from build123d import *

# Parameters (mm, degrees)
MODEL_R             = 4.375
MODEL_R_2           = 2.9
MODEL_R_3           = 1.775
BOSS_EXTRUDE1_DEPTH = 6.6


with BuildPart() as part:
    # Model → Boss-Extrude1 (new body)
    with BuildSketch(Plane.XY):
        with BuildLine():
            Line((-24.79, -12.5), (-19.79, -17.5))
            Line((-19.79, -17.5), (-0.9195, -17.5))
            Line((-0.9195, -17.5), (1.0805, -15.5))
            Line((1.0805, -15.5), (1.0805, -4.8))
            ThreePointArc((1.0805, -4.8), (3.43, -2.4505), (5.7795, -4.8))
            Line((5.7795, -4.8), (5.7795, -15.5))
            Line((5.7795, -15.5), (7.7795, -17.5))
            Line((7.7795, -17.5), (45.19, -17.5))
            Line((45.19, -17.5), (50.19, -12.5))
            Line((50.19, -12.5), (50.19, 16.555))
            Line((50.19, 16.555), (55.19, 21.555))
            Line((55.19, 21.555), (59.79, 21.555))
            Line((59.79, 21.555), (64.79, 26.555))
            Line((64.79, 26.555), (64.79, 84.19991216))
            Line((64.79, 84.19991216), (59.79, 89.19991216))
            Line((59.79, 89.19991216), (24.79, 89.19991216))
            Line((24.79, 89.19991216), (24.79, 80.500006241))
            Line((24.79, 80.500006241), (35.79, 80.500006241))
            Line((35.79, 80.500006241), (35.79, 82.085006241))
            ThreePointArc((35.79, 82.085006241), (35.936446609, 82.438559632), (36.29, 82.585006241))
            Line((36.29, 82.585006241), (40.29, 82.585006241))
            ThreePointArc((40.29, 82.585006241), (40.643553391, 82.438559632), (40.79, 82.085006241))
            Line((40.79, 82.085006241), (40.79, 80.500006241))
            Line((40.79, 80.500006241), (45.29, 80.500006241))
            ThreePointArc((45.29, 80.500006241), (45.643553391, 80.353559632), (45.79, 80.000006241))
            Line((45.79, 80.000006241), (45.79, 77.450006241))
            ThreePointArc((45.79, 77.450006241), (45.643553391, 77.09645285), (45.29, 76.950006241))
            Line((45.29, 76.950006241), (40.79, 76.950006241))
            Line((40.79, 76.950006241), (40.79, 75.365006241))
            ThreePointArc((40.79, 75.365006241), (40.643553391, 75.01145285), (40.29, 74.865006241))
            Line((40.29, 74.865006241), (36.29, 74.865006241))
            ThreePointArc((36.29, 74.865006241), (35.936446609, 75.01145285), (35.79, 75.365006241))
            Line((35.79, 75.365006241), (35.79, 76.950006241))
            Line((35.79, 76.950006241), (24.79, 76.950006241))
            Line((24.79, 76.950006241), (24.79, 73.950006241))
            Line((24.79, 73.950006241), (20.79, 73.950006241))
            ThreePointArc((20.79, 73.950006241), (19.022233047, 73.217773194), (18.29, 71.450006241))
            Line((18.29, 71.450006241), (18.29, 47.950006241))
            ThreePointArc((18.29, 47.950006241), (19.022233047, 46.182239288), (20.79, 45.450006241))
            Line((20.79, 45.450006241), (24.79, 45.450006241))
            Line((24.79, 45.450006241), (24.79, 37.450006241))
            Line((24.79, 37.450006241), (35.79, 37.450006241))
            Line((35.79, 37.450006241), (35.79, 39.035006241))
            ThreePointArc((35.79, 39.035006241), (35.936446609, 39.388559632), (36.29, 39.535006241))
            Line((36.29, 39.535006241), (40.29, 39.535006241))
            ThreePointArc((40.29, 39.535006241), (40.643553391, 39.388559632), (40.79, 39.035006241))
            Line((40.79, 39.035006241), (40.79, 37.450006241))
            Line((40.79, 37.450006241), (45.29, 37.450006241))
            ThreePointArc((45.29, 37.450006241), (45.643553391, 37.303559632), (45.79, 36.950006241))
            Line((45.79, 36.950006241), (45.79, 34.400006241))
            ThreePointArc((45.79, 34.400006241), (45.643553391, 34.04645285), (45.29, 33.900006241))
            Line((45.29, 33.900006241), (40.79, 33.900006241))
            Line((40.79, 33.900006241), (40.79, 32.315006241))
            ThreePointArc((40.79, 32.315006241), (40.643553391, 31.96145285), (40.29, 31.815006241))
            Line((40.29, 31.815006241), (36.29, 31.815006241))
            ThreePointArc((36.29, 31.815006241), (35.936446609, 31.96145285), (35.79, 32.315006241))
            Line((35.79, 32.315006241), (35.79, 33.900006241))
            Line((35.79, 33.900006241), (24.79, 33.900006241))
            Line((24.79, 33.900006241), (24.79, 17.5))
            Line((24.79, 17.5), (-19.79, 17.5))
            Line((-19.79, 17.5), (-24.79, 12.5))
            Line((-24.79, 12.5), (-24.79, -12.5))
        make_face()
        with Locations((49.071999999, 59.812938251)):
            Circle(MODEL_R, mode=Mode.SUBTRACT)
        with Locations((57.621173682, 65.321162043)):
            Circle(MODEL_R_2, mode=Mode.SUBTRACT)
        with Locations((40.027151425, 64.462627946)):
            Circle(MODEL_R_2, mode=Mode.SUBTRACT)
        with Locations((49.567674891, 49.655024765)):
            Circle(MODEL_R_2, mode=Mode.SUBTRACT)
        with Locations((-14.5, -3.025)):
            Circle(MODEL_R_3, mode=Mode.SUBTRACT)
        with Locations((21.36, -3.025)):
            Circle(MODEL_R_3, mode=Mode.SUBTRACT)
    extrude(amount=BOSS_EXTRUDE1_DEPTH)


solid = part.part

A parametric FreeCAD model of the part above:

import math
import FreeCAD as App
import Part
import Sketcher

V = App.Vector

doc = App.newDocument("Part")
body = doc.addObject("PartDesign::Body", "Body")

sketch1 = body.newObject("Sketcher::SketchObject", "Sketch")
sketch1.AttachmentSupport = (doc.getObject("XY_Plane"), [""])
sketch1.MapMode = "FlatFace"
sketch1.addGeometry(Part.LineSegment(V(-24.79, -12.5, 0), V(-19.79, -17.5, 0)), False)
sketch1.addGeometry(Part.LineSegment(V(-19.79, -17.5, 0), V(-0.92, -17.5, 0)), False)
sketch1.addGeometry(Part.LineSegment(V(-0.92, -17.5, 0), V(1.08, -15.5, 0)), False)
sketch1.addGeometry(Part.LineSegment(V(1.08, -15.5, 0), V(1.08, -4.8, 0)), False)
sketch1.addGeometry(Part.ArcOfCircle(Part.Circle(V(3.43, -4.8, 0), V(0, 0, 1), 2.35), math.radians(0), math.radians(180)), False)
sketch1.addGeometry(Part.LineSegment(V(5.78, -4.8, 0), V(5.78, -15.5, 0)), False)
sketch1.addGeometry(Part.LineSegment(V(5.78, -15.5, 0), V(7.78, -17.5, 0)), False)
sketch1.addGeometry(Part.LineSegment(V(7.78, -17.5, 0), V(45.19, -17.5, 0)), False)
sketch1.addGeometry(Part.LineSegment(V(45.19, -17.5, 0), V(50.19, -12.5, 0)), False)
sketch1.addGeometry(Part.LineSegment(V(50.19, -12.5, 0), V(50.19, 16.55, 0)), False)
sketch1.addGeometry(Part.LineSegment(V(50.19, 16.55, 0), V(55.19, 21.55, 0)), False)
sketch1.addGeometry(Part.LineSegment(V(55.19, 21.55, 0), V(59.79, 21.55, 0)), False)
sketch1.addGeometry(Part.LineSegment(V(59.79, 21.55, 0), V(64.79, 26.55, 0)), False)
sketch1.addGeometry(Part.LineSegment(V(64.79, 26.55, 0), V(64.79, 84.2, 0)), False)
sketch1.addGeometry(Part.LineSegment(V(64.79, 84.2, 0), V(59.79, 89.2, 0)), False)
sketch1.addGeometry(Part.LineSegment(V(59.79, 89.2, 0), V(24.79, 89.2, 0)), False)
sketch1.addGeometry(Part.LineSegment(V(24.79, 89.2, 0), V(24.79, 80.5, 0)), False)
sketch1.addGeometry(Part.LineSegment(V(24.79, 80.5, 0), V(35.79, 80.5, 0)), False)
sketch1.addGeometry(Part.LineSegment(V(35.79, 80.5, 0), V(35.79, 82.09, 0)), False)
sketch1.addGeometry(Part.ArcOfCircle(Part.Circle(V(36.29, 82.09, 0), V(0, 0, 1), 0.5), math.radians(90), math.radians(180)), False)
sketch1.addGeometry(Part.LineSegment(V(36.29, 82.59, 0), V(40.29, 82.59, 0)), False)
sketch1.addGeometry(Part.ArcOfCircle(Part.Circle(V(40.29, 82.09, 0), V(0, 0, 1), 0.5), math.radians(0), math.radians(90)), False)
sketch1.addGeometry(Part.LineSegment(V(40.79, 82.09, 0), V(40.79, 80.5, 0)), False)
sketch1.addGeometry(Part.LineSegment(V(40.79, 80.5, 0), V(45.29, 80.5, 0)), False)
sketch1.addGeometry(Part.ArcOfCircle(Part.Circle(V(45.29, 80, 0), V(0, 0, 1), 0.5), math.radians(0), math.radians(90)), False)
sketch1.addGeometry(Part.LineSegment(V(45.79, 80, 0), V(45.79, 77.45, 0)), False)
sketch1.addGeometry(Part.ArcOfCircle(Part.Circle(V(45.29, 77.45, 0), V(0, 0, 1), 0.5), math.radians(-90), math.radians(0)), False)
sketch1.addGeometry(Part.LineSegment(V(45.29, 76.95, 0), V(40.79, 76.95, 0)), False)
sketch1.addGeometry(Part.LineSegment(V(40.79, 76.95, 0), V(40.79, 75.37, 0)), False)
sketch1.addGeometry(Part.ArcOfCircle(Part.Circle(V(40.29, 75.37, 0), V(0, 0, 1), 0.5), math.radians(-90), math.radians(0)), False)
sketch1.addGeometry(Part.LineSegment(V(40.29, 74.87, 0), V(36.29, 74.87, 0)), False)
sketch1.addGeometry(Part.ArcOfCircle(Part.Circle(V(36.29, 75.37, 0), V(0, 0, 1), 0.5), math.radians(180), math.radians(270)), False)
sketch1.addGeometry(Part.LineSegment(V(35.79, 75.37, 0), V(35.79, 76.95, 0)), False)
sketch1.addGeometry(Part.LineSegment(V(35.79, 76.95, 0), V(24.79, 76.95, 0)), False)
sketch1.addGeometry(Part.LineSegment(V(24.79, 76.95, 0), V(24.79, 73.95, 0)), False)
sketch1.addGeometry(Part.LineSegment(V(24.79, 73.95, 0), V(20.79, 73.95, 0)), False)
sketch1.addGeometry(Part.ArcOfCircle(Part.Circle(V(20.79, 71.45, 0), V(0, 0, 1), 2.5), math.radians(90), math.radians(180)), False)
sketch1.addGeometry(Part.LineSegment(V(18.29, 71.45, 0), V(18.29, 47.95, 0)), False)
sketch1.addGeometry(Part.ArcOfCircle(Part.Circle(V(20.79, 47.95, 0), V(0, 0, 1), 2.5), math.radians(180), math.radians(270)), False)
sketch1.addGeometry(Part.LineSegment(V(20.79, 45.45, 0), V(24.79, 45.45, 0)), False)
sketch1.addGeometry(Part.LineSegment(V(24.79, 45.45, 0), V(24.79, 37.45, 0)), False)
sketch1.addGeometry(Part.LineSegment(V(24.79, 37.45, 0), V(35.79, 37.45, 0)), False)
sketch1.addGeometry(Part.LineSegment(V(35.79, 37.45, 0), V(35.79, 39.04, 0)), False)
sketch1.addGeometry(Part.ArcOfCircle(Part.Circle(V(36.29, 39.04, 0), V(0, 0, 1), 0.5), math.radians(90), math.radians(180)), False)
sketch1.addGeometry(Part.LineSegment(V(36.29, 39.54, 0), V(40.29, 39.54, 0)), False)
sketch1.addGeometry(Part.ArcOfCircle(Part.Circle(V(40.29, 39.04, 0), V(0, 0, 1), 0.5), math.radians(0), math.radians(90)), False)
sketch1.addGeometry(Part.LineSegment(V(40.79, 39.04, 0), V(40.79, 37.45, 0)), False)
sketch1.addGeometry(Part.LineSegment(V(40.79, 37.45, 0), V(45.29, 37.45, 0)), False)
sketch1.addGeometry(Part.ArcOfCircle(Part.Circle(V(45.29, 36.95, 0), V(0, 0, 1), 0.5), math.radians(0), math.radians(90)), False)
sketch1.addGeometry(Part.LineSegment(V(45.79, 36.95, 0), V(45.79, 34.4, 0)), False)
sketch1.addGeometry(Part.ArcOfCircle(Part.Circle(V(45.29, 34.4, 0), V(0, 0, 1), 0.5), math.radians(-90), math.radians(0)), False)
sketch1.addGeometry(Part.LineSegment(V(45.29, 33.9, 0), V(40.79, 33.9, 0)), False)
sketch1.addGeometry(Part.LineSegment(V(40.79, 33.9, 0), V(40.79, 32.32, 0)), False)
sketch1.addGeometry(Part.ArcOfCircle(Part.Circle(V(40.29, 32.32, 0), V(0, 0, 1), 0.5), math.radians(-90), math.radians(0)), False)
sketch1.addGeometry(Part.LineSegment(V(40.29, 31.82, 0), V(36.29, 31.82, 0)), False)
sketch1.addGeometry(Part.ArcOfCircle(Part.Circle(V(36.29, 32.32, 0), V(0, 0, 1), 0.5), math.radians(180), math.radians(270)), False)
sketch1.addGeometry(Part.LineSegment(V(35.79, 32.32, 0), V(35.79, 33.9, 0)), False)
sketch1.addGeometry(Part.LineSegment(V(35.79, 33.9, 0), V(24.79, 33.9, 0)), False)
sketch1.addGeometry(Part.LineSegment(V(24.79, 33.9, 0), V(24.79, 17.5, 0)), False)
sketch1.addGeometry(Part.LineSegment(V(24.79, 17.5, 0), V(-19.79, 17.5, 0)), False)
sketch1.addGeometry(Part.LineSegment(V(-19.79, 17.5, 0), V(-24.79, 12.5, 0)), False)
sketch1.addGeometry(Part.LineSegment(V(-24.79, 12.5, 0), V(-24.79, -12.5, 0)), False)
sketch1.addGeometry(Part.Circle(V(-14.5, -3.02, 0), V(0, 0, 1), 1.77), False)
sketch1.addGeometry(Part.Circle(V(21.36, -3.02, 0), V(0, 0, 1), 1.77), False)
sketch1.addGeometry(Part.Circle(V(49.57, 49.66, 0), V(0, 0, 1), 2.9), False)
sketch1.addGeometry(Part.Circle(V(40.03, 64.46, 0), V(0, 0, 1), 2.9), False)
sketch1.addGeometry(Part.Circle(V(49.07, 59.81, 0), V(0, 0, 1), 4.38), False)
sketch1.addGeometry(Part.Circle(V(57.62, 65.32, 0), V(0, 0, 1), 2.9), False)
sketch1.addConstraint(Sketcher.Constraint("Coincident", 0, 2, 1, 1))
sketch1.addConstraint(Sketcher.Constraint("Coincident", 1, 2, 2, 1))
sketch1.addConstraint(Sketcher.Constraint("Coincident", 2, 2, 3, 1))
sketch1.addConstraint(Sketcher.Constraint("Tangent", 3, 2, 4, 2))
sketch1.addConstraint(Sketcher.Constraint("Tangent", 4, 1, 5, 1))
sketch1.addConstraint(Sketcher.Constraint("Coincident", 5, 2, 6, 1))
sketch1.addConstraint(Sketcher.Constraint("Coincident", 6, 2, 7, 1))
sketch1.addConstraint(Sketcher.Constraint("Coincident", 7, 2, 8, 1))
sketch1.addConstraint(Sketcher.Constraint("Coincident", 8, 2, 9, 1))
sketch1.addConstraint(Sketcher.Constraint("Coincident", 9, 2, 10, 1))
sketch1.addConstraint(Sketcher.Constraint("Coincident", 10, 2, 11, 1))
sketch1.addConstraint(Sketcher.Constraint("Coincident", 11, 2, 12, 1))
sketch1.addConstraint(Sketcher.Constraint("Coincident", 12, 2, 13, 1))
sketch1.addConstraint(Sketcher.Constraint("Coincident", 13, 2, 14, 1))
sketch1.addConstraint(Sketcher.Constraint("Coincident", 14, 2, 15, 1))
sketch1.addConstraint(Sketcher.Constraint("Coincident", 15, 2, 16, 1))
sketch1.addConstraint(Sketcher.Constraint("Coincident", 16, 2, 17, 1))
sketch1.addConstraint(Sketcher.Constraint("Coincident", 17, 2, 18, 1))
sketch1.addConstraint(Sketcher.Constraint("Tangent", 18, 2, 19, 2))
sketch1.addConstraint(Sketcher.Constraint("Tangent", 19, 1, 20, 1))
sketch1.addConstraint(Sketcher.Constraint("Tangent", 20, 2, 21, 2))
sketch1.addConstraint(Sketcher.Constraint("Tangent", 21, 1, 22, 1))
sketch1.addConstraint(Sketcher.Constraint("Coincident", 22, 2, 23, 1))
sketch1.addConstraint(Sketcher.Constraint("Tangent", 23, 2, 24, 2))
sketch1.addConstraint(Sketcher.Constraint("Tangent", 24, 1, 25, 1))
sketch1.addConstraint(Sketcher.Constraint("Tangent", 25, 2, 26, 2))
sketch1.addConstraint(Sketcher.Constraint("Tangent", 26, 1, 27, 1))
sketch1.addConstraint(Sketcher.Constraint("Coincident", 27, 2, 28, 1))
sketch1.addConstraint(Sketcher.Constraint("Tangent", 28, 2, 29, 2))
sketch1.addConstraint(Sketcher.Constraint("Tangent", 29, 1, 30, 1))
sketch1.addConstraint(Sketcher.Constraint("Tangent", 30, 2, 31, 2))
sketch1.addConstraint(Sketcher.Constraint("Tangent", 31, 1, 32, 1))
sketch1.addConstraint(Sketcher.Constraint("Coincident", 32, 2, 33, 1))
sketch1.addConstraint(Sketcher.Constraint("Coincident", 33, 2, 34, 1))
sketch1.addConstraint(Sketcher.Constraint("Coincident", 34, 2, 35, 1))
sketch1.addConstraint(Sketcher.Constraint("Tangent", 35, 2, 36, 1))
sketch1.addConstraint(Sketcher.Constraint("Tangent", 36, 2, 37, 1))
sketch1.addConstraint(Sketcher.Constraint("Tangent", 37, 2, 38, 1))
sketch1.addConstraint(Sketcher.Constraint("Tangent", 38, 2, 39, 1))
sketch1.addConstraint(Sketcher.Constraint("Coincident", 39, 2, 40, 1))
sketch1.addConstraint(Sketcher.Constraint("Coincident", 40, 2, 41, 1))
sketch1.addConstraint(Sketcher.Constraint("Coincident", 41, 2, 42, 1))
sketch1.addConstraint(Sketcher.Constraint("Tangent", 42, 2, 43, 2))
sketch1.addConstraint(Sketcher.Constraint("Tangent", 43, 1, 44, 1))
sketch1.addConstraint(Sketcher.Constraint("Tangent", 44, 2, 45, 2))
sketch1.addConstraint(Sketcher.Constraint("Tangent", 45, 1, 46, 1))
sketch1.addConstraint(Sketcher.Constraint("Coincident", 46, 2, 47, 1))
sketch1.addConstraint(Sketcher.Constraint("Tangent", 47, 2, 48, 2))
sketch1.addConstraint(Sketcher.Constraint("Tangent", 48, 1, 49, 1))
sketch1.addConstraint(Sketcher.Constraint("Tangent", 49, 2, 50, 2))
sketch1.addConstraint(Sketcher.Constraint("Tangent", 50, 1, 51, 1))
sketch1.addConstraint(Sketcher.Constraint("Coincident", 51, 2, 52, 1))
sketch1.addConstraint(Sketcher.Constraint("Tangent", 52, 2, 53, 2))
sketch1.addConstraint(Sketcher.Constraint("Tangent", 53, 1, 54, 1))
sketch1.addConstraint(Sketcher.Constraint("Tangent", 54, 2, 55, 2))
sketch1.addConstraint(Sketcher.Constraint("Tangent", 55, 1, 56, 1))
sketch1.addConstraint(Sketcher.Constraint("Coincident", 56, 2, 57, 1))
sketch1.addConstraint(Sketcher.Constraint("Coincident", 57, 2, 58, 1))
sketch1.addConstraint(Sketcher.Constraint("Coincident", 58, 2, 59, 1))
sketch1.addConstraint(Sketcher.Constraint("Coincident", 59, 2, 60, 1))
sketch1.addConstraint(Sketcher.Constraint("Coincident", 60, 2, 61, 1))
sketch1.addConstraint(Sketcher.Constraint("Coincident", 61, 2, 0, 1))
sketch1.addConstraint(Sketcher.Constraint("Horizontal", 1))
sketch1.addConstraint(Sketcher.Constraint("Vertical", 3))
sketch1.addConstraint(Sketcher.Constraint("Vertical", 5))
sketch1.addConstraint(Sketcher.Constraint("Horizontal", 7))
sketch1.addConstraint(Sketcher.Constraint("Vertical", 9))
sketch1.addConstraint(Sketcher.Constraint("Horizontal", 11))
sketch1.addConstraint(Sketcher.Constraint("Vertical", 13))
sketch1.addConstraint(Sketcher.Constraint("Horizontal", 15))
sketch1.addConstraint(Sketcher.Constraint("Vertical", 16))
sketch1.addConstraint(Sketcher.Constraint("Horizontal", 17))
sketch1.addConstraint(Sketcher.Constraint("Vertical", 18))
sketch1.addConstraint(Sketcher.Constraint("Horizontal", 20))
sketch1.addConstraint(Sketcher.Constraint("Vertical", 22))
sketch1.addConstraint(Sketcher.Constraint("Horizontal", 23))
sketch1.addConstraint(Sketcher.Constraint("Vertical", 25))
sketch1.addConstraint(Sketcher.Constraint("Horizontal", 27))
sketch1.addConstraint(Sketcher.Constraint("Vertical", 28))
sketch1.addConstraint(Sketcher.Constraint("Horizontal", 30))
sketch1.addConstraint(Sketcher.Constraint("Vertical", 32))
sketch1.addConstraint(Sketcher.Constraint("Horizontal", 33))
sketch1.addConstraint(Sketcher.Constraint("Vertical", 34))
sketch1.addConstraint(Sketcher.Constraint("Horizontal", 35))
sketch1.addConstraint(Sketcher.Constraint("Vertical", 37))
sketch1.addConstraint(Sketcher.Constraint("Horizontal", 39))
sketch1.addConstraint(Sketcher.Constraint("Vertical", 40))
sketch1.addConstraint(Sketcher.Constraint("Horizontal", 41))
sketch1.addConstraint(Sketcher.Constraint("Vertical", 42))
sketch1.addConstraint(Sketcher.Constraint("Horizontal", 44))
sketch1.addConstraint(Sketcher.Constraint("Vertical", 46))
sketch1.addConstraint(Sketcher.Constraint("Horizontal", 47))
sketch1.addConstraint(Sketcher.Constraint("Vertical", 49))
sketch1.addConstraint(Sketcher.Constraint("Horizontal", 51))
sketch1.addConstraint(Sketcher.Constraint("Vertical", 52))
sketch1.addConstraint(Sketcher.Constraint("Horizontal", 54))
sketch1.addConstraint(Sketcher.Constraint("Vertical", 56))
sketch1.addConstraint(Sketcher.Constraint("Horizontal", 57))
sketch1.addConstraint(Sketcher.Constraint("Vertical", 58))
sketch1.addConstraint(Sketcher.Constraint("Horizontal", 59))
sketch1.addConstraint(Sketcher.Constraint("Vertical", 61))
sketch1.addConstraint(Sketcher.Constraint("Equal", 19, 21))
sketch1.addConstraint(Sketcher.Constraint("Equal", 21, 24))
sketch1.addConstraint(Sketcher.Constraint("Equal", 24, 26))
sketch1.addConstraint(Sketcher.Constraint("Equal", 26, 29))
sketch1.addConstraint(Sketcher.Constraint("Equal", 29, 31))
sketch1.addConstraint(Sketcher.Constraint("Equal", 36, 38))
sketch1.addConstraint(Sketcher.Constraint("Equal", 31, 43))
sketch1.addConstraint(Sketcher.Constraint("Equal", 43, 45))
sketch1.addConstraint(Sketcher.Constraint("Equal", 45, 48))
sketch1.addConstraint(Sketcher.Constraint("Equal", 48, 50))
sketch1.addConstraint(Sketcher.Constraint("Equal", 50, 53))
sketch1.addConstraint(Sketcher.Constraint("Equal", 53, 55))
sketch1.addConstraint(Sketcher.Constraint("Equal", 62, 63))
sketch1.addConstraint(Sketcher.Constraint("Equal", 64, 65))
sketch1.addConstraint(Sketcher.Constraint("Equal", 65, 67))
sketch1.addConstraint(Sketcher.Constraint("Symmetric", 0, 2, 59, 2, -1))
sketch1.addConstraint(Sketcher.Constraint("Perpendicular", 0, 2))
sketch1.addConstraint(Sketcher.Constraint("Perpendicular", 2, 6))
sketch1.addConstraint(Sketcher.Constraint("Perpendicular", 6, 8))
sketch1.addConstraint(Sketcher.Constraint("Parallel", 8, 10))
sketch1.addConstraint(Sketcher.Constraint("Parallel", 10, 12))
sketch1.addConstraint(Sketcher.Constraint("Perpendicular", 12, 14))
sketch1.addConstraint(Sketcher.Constraint("Perpendicular", 14, 60))
sketch1.addConstraint(Sketcher.Constraint("Horizontal", 62, 3, 63, 3))
sketch1.addConstraint(Sketcher.Constraint("Horizontal", 2, 2, 5, 2))
sketch1.addConstraint(Sketcher.Constraint("Horizontal", 1, 2, 6, 2))
sketch1.addConstraint(Sketcher.Constraint("Horizontal", 17, 2, 22, 2))
sketch1.addConstraint(Sketcher.Constraint("Horizontal", 27, 2, 32, 2))
sketch1.addConstraint(Sketcher.Constraint("Horizontal", 41, 2, 46, 2))
sketch1.addConstraint(Sketcher.Constraint("Horizontal", 51, 2, 56, 2))
sketch1.addConstraint(Sketcher.Constraint("Horizontal", 8, 2, 61, 2))
sketch1.addConstraint(Sketcher.Constraint("Vertical", 21, 3, 29, 3))
sketch1.addConstraint(Sketcher.Constraint("Vertical", 19, 3, 31, 3))
sketch1.addConstraint(Sketcher.Constraint("Vertical", 31, 3, 43, 3))
sketch1.addConstraint(Sketcher.Constraint("Vertical", 29, 3, 45, 3))
sketch1.addConstraint(Sketcher.Constraint("Vertical", 26, 3, 48, 3))
sketch1.addConstraint(Sketcher.Constraint("Vertical", 45, 3, 53, 3))
sketch1.addConstraint(Sketcher.Constraint("Vertical", 43, 3, 55, 3))
sketch1.addConstraint(Sketcher.Constraint("Vertical", 11, 2, 14, 2))
sketch1.addConstraint(Sketcher.Constraint("Vertical", 16, 2, 33, 2))
sketch1.addConstraint(Sketcher.Constraint("Vertical", 34, 2, 39, 2))
sketch1.addConstraint(Sketcher.Constraint("Vertical", 40, 2, 57, 2))
sketch1.addConstraint(Sketcher.Constraint("Equal", 30, 35))
sketch1.addConstraint(Sketcher.Constraint("Equal", 22, 28))
sketch1.addConstraint(Sketcher.Constraint("Equal", 32, 42))
sketch1.addConstraint(Sketcher.Constraint("Equal", 25, 49))
sketch1.addConstraint(Sketcher.Constraint("Equal", 46, 52))
sketch1.addConstraint(Sketcher.Constraint("Equal", 2, 6))
sketch1.addConstraint(Sketcher.Constraint("Equal", 8, 10))
sketch1.addConstraint(Sketcher.Constraint("Equal", 10, 12))
sketch1.addConstraint(Sketcher.Constraint("Diameter", 64, 5.8))
sketch1.addConstraint(Sketcher.Constraint("Radius", 19, 0.5))
sketch1.addConstraint(Sketcher.Constraint("Radius", 36, 2.5))
sketch1.addConstraint(Sketcher.Constraint("Diameter", 62, 3.55))
sketch1.addConstraint(Sketcher.Constraint("Diameter", 66, 8.75))
sketch1.addConstraint(Sketcher.Constraint("DistanceX", 15, 2, 15, 1, 35.0))
sketch1.addConstraint(Sketcher.Constraint("DistanceX", 17, 1, 17, 2, 11.0))
sketch1.addConstraint(Sketcher.Constraint("DistanceX", 20, 1, 20, 2, 4.0))
sketch1.addConstraint(Sketcher.Constraint("DistanceY", 34, 2, 34, 1, 3.0))
sketch1.addConstraint(Sketcher.Constraint("DistanceY", 40, 2, 40, 1, 8.0))
sketch1.addConstraint(Sketcher.Constraint("DistanceY", 61, 2, 61, 1, 25.0))
sketch1.addConstraint(Sketcher.Constraint("DistanceX", 11, 1, 11, 2, 4.6))
sketch1.addConstraint(Sketcher.Constraint("DistanceX", 23, 1, 23, 2, 4.5))
sketch1.addConstraint(Sketcher.Constraint("DistanceY", 3, 1, 3, 2, 10.7))
sketch1.addConstraint(Sketcher.Constraint("DistanceY", 37, 2, 37, 1, 23.5))
sketch1.addConstraint(Sketcher.Constraint("DistanceX", 59, 2, 59, 1, 44.58))
sketch1.addConstraint(Sketcher.Constraint("DistanceY", 25, 2, 25, 1, 2.55))
sketch1.addConstraint(Sketcher.Constraint("DistanceY", 4, 3, -1, 1, 4.8))
sketch1.addConstraint(Sketcher.Constraint("DistanceX", 62, 3, -1, 1, 14.5))
sketch1.addConstraint(Sketcher.Constraint("DistanceY", 0, 2, -1, 1, 17.5))
sketch1.addConstraint(Sketcher.Constraint("Radius", 4, 2.3495))
sketch1.addConstraint(Sketcher.Constraint("DistanceY", 9, 1, 9, 2, 29.055))
sketch1.addConstraint(Sketcher.Constraint("DistanceY", 18, 1, 18, 2, 1.585))
sketch1.addConstraint(Sketcher.Constraint("DistanceX", -1, 1, 4, 3, 3.43))
sketch1.addConstraint(Sketcher.Constraint("DistanceX", -1, 1, 19, 3, 36.29))
sketch1.addConstraint(Sketcher.Constraint("DistanceX", -1, 1, 63, 3, 21.36))
sketch1.addConstraint(Sketcher.Constraint("DistanceY", 62, 3, -1, 1, 3.025))
sketch1.addConstraint(Sketcher.Constraint("DistanceX", -1, 1, 66, 3, 49.072))
sketch1.addConstraint(Sketcher.Constraint("DistanceY", 13, 1, 13, 2, 57.644912))
sketch1.addConstraint(Sketcher.Constraint("DistanceY", 16, 2, 16, 1, 8.699906))
sketch1.addConstraint(Sketcher.Constraint("DistanceX", -1, 1, 65, 3, 40.027151))
sketch1.addConstraint(Sketcher.Constraint("DistanceY", -1, 1, 66, 3, 59.812938))
sketch1.addConstraint(Sketcher.Constraint("DistanceX", -1, 1, 64, 3, 49.567675))
sketch1.addConstraint(Sketcher.Constraint("DistanceY", -1, 1, 64, 3, 49.655025))
sketch1.addConstraint(Sketcher.Constraint("DistanceY", -1, 1, 65, 3, 64.462628))
sketch1.addConstraint(Sketcher.Constraint("DistanceX", -1, 1, 67, 3, 57.621174))
sketch1.addConstraint(Sketcher.Constraint("DistanceY", -1, 1, 67, 3, 65.321162))
pad1 = body.newObject("PartDesign::Pad", "Pad")
pad1.Profile = sketch1
pad1.Length = 6.6

doc.recompute()
